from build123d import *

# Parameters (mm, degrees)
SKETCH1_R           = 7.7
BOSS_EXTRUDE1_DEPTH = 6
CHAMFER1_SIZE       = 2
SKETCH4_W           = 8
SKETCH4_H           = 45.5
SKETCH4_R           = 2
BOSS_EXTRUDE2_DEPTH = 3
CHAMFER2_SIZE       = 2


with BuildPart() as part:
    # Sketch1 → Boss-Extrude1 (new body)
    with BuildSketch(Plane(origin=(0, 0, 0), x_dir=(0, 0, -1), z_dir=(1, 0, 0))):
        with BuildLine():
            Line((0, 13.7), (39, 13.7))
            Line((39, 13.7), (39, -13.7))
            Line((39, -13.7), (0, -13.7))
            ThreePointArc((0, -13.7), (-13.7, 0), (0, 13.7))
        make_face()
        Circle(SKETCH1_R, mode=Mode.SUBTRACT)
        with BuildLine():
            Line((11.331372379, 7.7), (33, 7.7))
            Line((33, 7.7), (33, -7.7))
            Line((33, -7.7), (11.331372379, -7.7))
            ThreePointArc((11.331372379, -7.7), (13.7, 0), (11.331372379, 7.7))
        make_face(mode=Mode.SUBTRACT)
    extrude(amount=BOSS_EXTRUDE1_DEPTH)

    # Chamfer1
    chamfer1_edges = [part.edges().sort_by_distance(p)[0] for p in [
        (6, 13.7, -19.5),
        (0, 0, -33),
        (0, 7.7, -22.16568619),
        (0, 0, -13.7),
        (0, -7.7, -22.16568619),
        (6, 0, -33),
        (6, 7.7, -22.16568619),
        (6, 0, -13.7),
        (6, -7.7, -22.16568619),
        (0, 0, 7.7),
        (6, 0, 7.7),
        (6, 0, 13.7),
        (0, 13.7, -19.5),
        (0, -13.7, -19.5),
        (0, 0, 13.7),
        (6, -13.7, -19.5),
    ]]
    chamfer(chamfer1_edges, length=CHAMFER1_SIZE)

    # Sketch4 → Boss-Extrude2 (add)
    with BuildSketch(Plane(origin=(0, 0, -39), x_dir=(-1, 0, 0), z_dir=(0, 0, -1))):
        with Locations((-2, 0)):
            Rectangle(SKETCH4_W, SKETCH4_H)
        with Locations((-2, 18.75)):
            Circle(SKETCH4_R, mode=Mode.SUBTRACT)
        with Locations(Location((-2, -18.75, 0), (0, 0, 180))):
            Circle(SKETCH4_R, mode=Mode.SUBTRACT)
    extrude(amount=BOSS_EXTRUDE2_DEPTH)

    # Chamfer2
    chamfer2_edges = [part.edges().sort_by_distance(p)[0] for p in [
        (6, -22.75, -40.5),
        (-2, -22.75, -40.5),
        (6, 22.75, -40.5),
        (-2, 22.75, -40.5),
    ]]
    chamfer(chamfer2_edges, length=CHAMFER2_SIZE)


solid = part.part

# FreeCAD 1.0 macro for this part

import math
import FreeCAD as App
import Part
import Sketcher

V = App.Vector
Q = App.Units.Quantity


def edges_at(feature, points):
    """Names of the edges that pass closest to the given points."""
    edges = feature.Shape.Edges
    near = lambda p: min(range(len(edges)), key=lambda i: edges[i].distToShape(Part.Vertex(*p))[0])
    return sorted({f"Edge{near(p) + 1}" for p in points})


def add_polygon(sketch, points):
    """Adds a closed chain of lines whose ends are joined by coincident constraints."""
    first, n = sketch.GeometryCount, len(points)
    for a, b in zip(points, points[1:] + points[:1]):
        sketch.addGeometry(Part.LineSegment(App.Vector(*a, 0), App.Vector(*b, 0)), False)
    for i in range(n):
        sketch.addConstraint(Sketcher.Constraint("Coincident", first + i, 2, first + (i + 1) % n, 1))

doc = App.newDocument("Part")
body = doc.addObject("PartDesign::Body", "Body")

# Sketch on YZ plane
sketch1 = doc.addObject("Sketcher::SketchObject", "Sketch")
body.addObject(sketch1)
sketch1.AttachmentSupport = (doc.YZ_Plane, [""])
sketch1.MapMode = "FlatFace"
sketch1.addGeometry(Part.LineSegment(V(13.7, -39, 0), V(13.7, 0, 0)), False)
sketch1.addGeometry(Part.ArcOfCircle(Part.Circle(V(0, 0, 0), V(0, 0, 1), 13.7), math.radians(0), math.radians(180)), False)
sketch1.addGeometry(Part.LineSegment(V(-13.7, 0, 0), V(-13.7, -39, 0)), False)
sketch1.addGeometry(Part.LineSegment(V(-13.7, -39, 0), V(13.7, -39, 0)), False)
sketch1.addGeometry(Part.Circle(V(0, 0, 0), V(0, 0, 1), 7.7), False)
sketch1.addGeometry(Part.LineSegment(V(7.7, -11.331372, 0), V(7.7, -33, 0)), False)
sketch1.addGeometry(Part.LineSegment(V(7.7, -33, 0), V(-7.7, -33, 0)), False)
sketch1.addGeometry(Part.LineSegment(V(-7.7, -33, 0), V(-7.7, -11.331372, 0)), False)
sketch1.addGeometry(Part.ArcOfCircle(Part.Circle(V(0, 0, 0), V(0, 0, 1), 13.7), math.radians(-124.197258), math.radians(-55.802742)), False)
sketch1.addConstraint(Sketcher.Constraint("Tangent", 0, 2, 1, 1))
sketch1.addConstraint(Sketcher.Constraint("Tangent", 1, 2, 2, 1))
sketch1.addConstraint(Sketcher.Constraint("Coincident", 2, 2, 3, 1))
sketch1.addConstraint(Sketcher.Constraint("Coincident", 3, 2, 0, 1))
sketch1.addConstraint(Sketcher.Constraint("Coincident", 5, 2, 6, 1))
sketch1.addConstraint(Sketcher.Constraint("Coincident", 6, 2, 7, 1))
sketch1.addConstraint(Sketcher.Constraint("Coincident", 7, 2, 8, 1))
sketch1.addConstraint(Sketcher.Constraint("Coincident", 8, 2, 5, 1))
sketch1.addConstraint(Sketcher.Constraint("Vertical", 0))
sketch1.addConstraint(Sketcher.Constraint("Vertical", 2))
sketch1.addConstraint(Sketcher.Constraint("Horizontal", 3))
sketch1.addConstraint(Sketcher.Constraint("Vertical", 5))
sketch1.addConstraint(Sketcher.Constraint("Horizontal", 6))
sketch1.addConstraint(Sketcher.Constraint("Vertical", 7))
sketch1.addConstraint(Sketcher.Constraint("Coincident", 1, 3, -1, 1))
sketch1.addConstraint(Sketcher.Constraint("Coincident", 4, 3, -1, 1))
sketch1.addConstraint(Sketcher.Constraint("Coincident", 8, 3, -1, 1))
sketch1.addConstraint(Sketcher.Constraint("Equal", 1, 8))
sketch1.addConstraint(Sketcher.Constraint("Horizontal", 7, 2, 8, 2))
sketch1.addConstraint(Sketcher.Constraint("Diameter", 4, Q("15.4 mm")))
sketch1.addConstraint(Sketcher.Constraint("Radius", 1, Q("13.7 mm")))
sketch1.addConstraint(Sketcher.Constraint("DistanceY", 0, 1, 0, 2, Q("39 mm")))
sketch1.addConstraint(Sketcher.Constraint("DistanceX", 6, 2, 6, 1, Q("15.4 mm")))
sketch1.addConstraint(Sketcher.Constraint("DistanceY", 5, 2, -1, 1, Q("33 mm")))
pad1 = doc.addObject("PartDesign::Pad", "Pad")
body.addObject(pad1)
pad1.Profile = sketch1
pad1.Length = 6
doc.recompute()

chamfer = doc.addObject("PartDesign::Chamfer", "Chamfer")
body.addObject(chamfer)
chamfer.Base = (pad1, edges_at(pad1, [
    (6, 13.7, -19.5),
    (0, 0, -33),
    (0, 7.7, -22.166),
    (0, 0, -13.7),
    (0, -7.7, -22.166),
    (6, 0, -33),
    (6, 7.7, -22.166),
    (6, 0, -13.7),
    (6, -7.7, -22.166),
    (0, 0, 7.7),
    (6, 0, 7.7),
    (6, 0, 13.7),
    (0, 13.7, -19.5),
    (0, -13.7, -19.5),
    (0, 0, 13.7),
    (6, -13.7, -19.5),
]))
chamfer.Size = 2

# Sketch on XY plane
sketch2 = doc.addObject("Sketcher::SketchObject", "Sketch001")
body.addObject(sketch2)
sketch2.AttachmentSupport = (doc.XY_Plane, [""])
sketch2.MapMode = "FlatFace"
sketch2.AttachmentOffset = App.Placement(V(0, 0, -39), App.Rotation())
add_polygon(sketch2, [(6, 22.75), (6, -22.75), (-2, -22.75), (-2, 22.75)])  # lines 0-3
sketch2.addGeometry(Part.Circle(V(2, -18.75, 0), V(0, 0, 1), 2), False)  # 4
sketch2.addGeometry(Part.Circle(V(2, 18.75, 0), V(0, 0, 1), 2), False)  # 5
sketch2.addConstraint(Sketcher.Constraint("Vertical", 0))
sketch2.addConstraint(Sketcher.Constraint("Horizontal", 1))
sketch2.addConstraint(Sketcher.Constraint("Vertical", 2))
sketch2.addConstraint(Sketcher.Constraint("Horizontal", 3))
sketch2.addConstraint(Sketcher.Constraint("Equal", 4, 5))
sketch2.addConstraint(Sketcher.Constraint("Symmetric", 4, 3, 5, 3, -1))
sketch2.addConstraint(Sketcher.Constraint("Diameter", 4, Q("4 mm")))
sketch2.addConstraint(Sketcher.Constraint("DistanceX", 1, 2, 1, 1, Q("8 mm")))
sketch2.addConstraint(Sketcher.Constraint("DistanceY", 0, 2, 0, 1, Q("45.5 mm")))
sketch2.addConstraint(Sketcher.Constraint("DistanceX", -1, 1, 4, 3, Q("2 mm")))
sketch2.addConstraint(Sketcher.Constraint("DistanceX", -1, 1, 0, 2, Q("6 mm")))
sketch2.addConstraint(Sketcher.Constraint("DistanceY", 0, 2, 4, 3, Q("4 mm")))
sketch2.addConstraint(Sketcher.Constraint("DistanceY", 5, 3, 2, 2, Q("4 mm")))
pad2 = doc.addObject("PartDesign::Pad", "Pad001")
body.addObject(pad2)
pad2.Profile = sketch2
pad2.Length = 3
pad2.Reversed = True
doc.recompute()

chamfer2 = doc.addObject("PartDesign::Chamfer", "Chamfer001")
body.addObject(chamfer2)
chamfer2.Base = (pad2, edges_at(pad2, [
    (6, -22.75, -40.5),
    (-2, -22.75, -40.5),
    (6, 22.75, -40.5),
    (-2, 22.75, -40.5),
]))
chamfer2.Size = 2

doc.recompute()
